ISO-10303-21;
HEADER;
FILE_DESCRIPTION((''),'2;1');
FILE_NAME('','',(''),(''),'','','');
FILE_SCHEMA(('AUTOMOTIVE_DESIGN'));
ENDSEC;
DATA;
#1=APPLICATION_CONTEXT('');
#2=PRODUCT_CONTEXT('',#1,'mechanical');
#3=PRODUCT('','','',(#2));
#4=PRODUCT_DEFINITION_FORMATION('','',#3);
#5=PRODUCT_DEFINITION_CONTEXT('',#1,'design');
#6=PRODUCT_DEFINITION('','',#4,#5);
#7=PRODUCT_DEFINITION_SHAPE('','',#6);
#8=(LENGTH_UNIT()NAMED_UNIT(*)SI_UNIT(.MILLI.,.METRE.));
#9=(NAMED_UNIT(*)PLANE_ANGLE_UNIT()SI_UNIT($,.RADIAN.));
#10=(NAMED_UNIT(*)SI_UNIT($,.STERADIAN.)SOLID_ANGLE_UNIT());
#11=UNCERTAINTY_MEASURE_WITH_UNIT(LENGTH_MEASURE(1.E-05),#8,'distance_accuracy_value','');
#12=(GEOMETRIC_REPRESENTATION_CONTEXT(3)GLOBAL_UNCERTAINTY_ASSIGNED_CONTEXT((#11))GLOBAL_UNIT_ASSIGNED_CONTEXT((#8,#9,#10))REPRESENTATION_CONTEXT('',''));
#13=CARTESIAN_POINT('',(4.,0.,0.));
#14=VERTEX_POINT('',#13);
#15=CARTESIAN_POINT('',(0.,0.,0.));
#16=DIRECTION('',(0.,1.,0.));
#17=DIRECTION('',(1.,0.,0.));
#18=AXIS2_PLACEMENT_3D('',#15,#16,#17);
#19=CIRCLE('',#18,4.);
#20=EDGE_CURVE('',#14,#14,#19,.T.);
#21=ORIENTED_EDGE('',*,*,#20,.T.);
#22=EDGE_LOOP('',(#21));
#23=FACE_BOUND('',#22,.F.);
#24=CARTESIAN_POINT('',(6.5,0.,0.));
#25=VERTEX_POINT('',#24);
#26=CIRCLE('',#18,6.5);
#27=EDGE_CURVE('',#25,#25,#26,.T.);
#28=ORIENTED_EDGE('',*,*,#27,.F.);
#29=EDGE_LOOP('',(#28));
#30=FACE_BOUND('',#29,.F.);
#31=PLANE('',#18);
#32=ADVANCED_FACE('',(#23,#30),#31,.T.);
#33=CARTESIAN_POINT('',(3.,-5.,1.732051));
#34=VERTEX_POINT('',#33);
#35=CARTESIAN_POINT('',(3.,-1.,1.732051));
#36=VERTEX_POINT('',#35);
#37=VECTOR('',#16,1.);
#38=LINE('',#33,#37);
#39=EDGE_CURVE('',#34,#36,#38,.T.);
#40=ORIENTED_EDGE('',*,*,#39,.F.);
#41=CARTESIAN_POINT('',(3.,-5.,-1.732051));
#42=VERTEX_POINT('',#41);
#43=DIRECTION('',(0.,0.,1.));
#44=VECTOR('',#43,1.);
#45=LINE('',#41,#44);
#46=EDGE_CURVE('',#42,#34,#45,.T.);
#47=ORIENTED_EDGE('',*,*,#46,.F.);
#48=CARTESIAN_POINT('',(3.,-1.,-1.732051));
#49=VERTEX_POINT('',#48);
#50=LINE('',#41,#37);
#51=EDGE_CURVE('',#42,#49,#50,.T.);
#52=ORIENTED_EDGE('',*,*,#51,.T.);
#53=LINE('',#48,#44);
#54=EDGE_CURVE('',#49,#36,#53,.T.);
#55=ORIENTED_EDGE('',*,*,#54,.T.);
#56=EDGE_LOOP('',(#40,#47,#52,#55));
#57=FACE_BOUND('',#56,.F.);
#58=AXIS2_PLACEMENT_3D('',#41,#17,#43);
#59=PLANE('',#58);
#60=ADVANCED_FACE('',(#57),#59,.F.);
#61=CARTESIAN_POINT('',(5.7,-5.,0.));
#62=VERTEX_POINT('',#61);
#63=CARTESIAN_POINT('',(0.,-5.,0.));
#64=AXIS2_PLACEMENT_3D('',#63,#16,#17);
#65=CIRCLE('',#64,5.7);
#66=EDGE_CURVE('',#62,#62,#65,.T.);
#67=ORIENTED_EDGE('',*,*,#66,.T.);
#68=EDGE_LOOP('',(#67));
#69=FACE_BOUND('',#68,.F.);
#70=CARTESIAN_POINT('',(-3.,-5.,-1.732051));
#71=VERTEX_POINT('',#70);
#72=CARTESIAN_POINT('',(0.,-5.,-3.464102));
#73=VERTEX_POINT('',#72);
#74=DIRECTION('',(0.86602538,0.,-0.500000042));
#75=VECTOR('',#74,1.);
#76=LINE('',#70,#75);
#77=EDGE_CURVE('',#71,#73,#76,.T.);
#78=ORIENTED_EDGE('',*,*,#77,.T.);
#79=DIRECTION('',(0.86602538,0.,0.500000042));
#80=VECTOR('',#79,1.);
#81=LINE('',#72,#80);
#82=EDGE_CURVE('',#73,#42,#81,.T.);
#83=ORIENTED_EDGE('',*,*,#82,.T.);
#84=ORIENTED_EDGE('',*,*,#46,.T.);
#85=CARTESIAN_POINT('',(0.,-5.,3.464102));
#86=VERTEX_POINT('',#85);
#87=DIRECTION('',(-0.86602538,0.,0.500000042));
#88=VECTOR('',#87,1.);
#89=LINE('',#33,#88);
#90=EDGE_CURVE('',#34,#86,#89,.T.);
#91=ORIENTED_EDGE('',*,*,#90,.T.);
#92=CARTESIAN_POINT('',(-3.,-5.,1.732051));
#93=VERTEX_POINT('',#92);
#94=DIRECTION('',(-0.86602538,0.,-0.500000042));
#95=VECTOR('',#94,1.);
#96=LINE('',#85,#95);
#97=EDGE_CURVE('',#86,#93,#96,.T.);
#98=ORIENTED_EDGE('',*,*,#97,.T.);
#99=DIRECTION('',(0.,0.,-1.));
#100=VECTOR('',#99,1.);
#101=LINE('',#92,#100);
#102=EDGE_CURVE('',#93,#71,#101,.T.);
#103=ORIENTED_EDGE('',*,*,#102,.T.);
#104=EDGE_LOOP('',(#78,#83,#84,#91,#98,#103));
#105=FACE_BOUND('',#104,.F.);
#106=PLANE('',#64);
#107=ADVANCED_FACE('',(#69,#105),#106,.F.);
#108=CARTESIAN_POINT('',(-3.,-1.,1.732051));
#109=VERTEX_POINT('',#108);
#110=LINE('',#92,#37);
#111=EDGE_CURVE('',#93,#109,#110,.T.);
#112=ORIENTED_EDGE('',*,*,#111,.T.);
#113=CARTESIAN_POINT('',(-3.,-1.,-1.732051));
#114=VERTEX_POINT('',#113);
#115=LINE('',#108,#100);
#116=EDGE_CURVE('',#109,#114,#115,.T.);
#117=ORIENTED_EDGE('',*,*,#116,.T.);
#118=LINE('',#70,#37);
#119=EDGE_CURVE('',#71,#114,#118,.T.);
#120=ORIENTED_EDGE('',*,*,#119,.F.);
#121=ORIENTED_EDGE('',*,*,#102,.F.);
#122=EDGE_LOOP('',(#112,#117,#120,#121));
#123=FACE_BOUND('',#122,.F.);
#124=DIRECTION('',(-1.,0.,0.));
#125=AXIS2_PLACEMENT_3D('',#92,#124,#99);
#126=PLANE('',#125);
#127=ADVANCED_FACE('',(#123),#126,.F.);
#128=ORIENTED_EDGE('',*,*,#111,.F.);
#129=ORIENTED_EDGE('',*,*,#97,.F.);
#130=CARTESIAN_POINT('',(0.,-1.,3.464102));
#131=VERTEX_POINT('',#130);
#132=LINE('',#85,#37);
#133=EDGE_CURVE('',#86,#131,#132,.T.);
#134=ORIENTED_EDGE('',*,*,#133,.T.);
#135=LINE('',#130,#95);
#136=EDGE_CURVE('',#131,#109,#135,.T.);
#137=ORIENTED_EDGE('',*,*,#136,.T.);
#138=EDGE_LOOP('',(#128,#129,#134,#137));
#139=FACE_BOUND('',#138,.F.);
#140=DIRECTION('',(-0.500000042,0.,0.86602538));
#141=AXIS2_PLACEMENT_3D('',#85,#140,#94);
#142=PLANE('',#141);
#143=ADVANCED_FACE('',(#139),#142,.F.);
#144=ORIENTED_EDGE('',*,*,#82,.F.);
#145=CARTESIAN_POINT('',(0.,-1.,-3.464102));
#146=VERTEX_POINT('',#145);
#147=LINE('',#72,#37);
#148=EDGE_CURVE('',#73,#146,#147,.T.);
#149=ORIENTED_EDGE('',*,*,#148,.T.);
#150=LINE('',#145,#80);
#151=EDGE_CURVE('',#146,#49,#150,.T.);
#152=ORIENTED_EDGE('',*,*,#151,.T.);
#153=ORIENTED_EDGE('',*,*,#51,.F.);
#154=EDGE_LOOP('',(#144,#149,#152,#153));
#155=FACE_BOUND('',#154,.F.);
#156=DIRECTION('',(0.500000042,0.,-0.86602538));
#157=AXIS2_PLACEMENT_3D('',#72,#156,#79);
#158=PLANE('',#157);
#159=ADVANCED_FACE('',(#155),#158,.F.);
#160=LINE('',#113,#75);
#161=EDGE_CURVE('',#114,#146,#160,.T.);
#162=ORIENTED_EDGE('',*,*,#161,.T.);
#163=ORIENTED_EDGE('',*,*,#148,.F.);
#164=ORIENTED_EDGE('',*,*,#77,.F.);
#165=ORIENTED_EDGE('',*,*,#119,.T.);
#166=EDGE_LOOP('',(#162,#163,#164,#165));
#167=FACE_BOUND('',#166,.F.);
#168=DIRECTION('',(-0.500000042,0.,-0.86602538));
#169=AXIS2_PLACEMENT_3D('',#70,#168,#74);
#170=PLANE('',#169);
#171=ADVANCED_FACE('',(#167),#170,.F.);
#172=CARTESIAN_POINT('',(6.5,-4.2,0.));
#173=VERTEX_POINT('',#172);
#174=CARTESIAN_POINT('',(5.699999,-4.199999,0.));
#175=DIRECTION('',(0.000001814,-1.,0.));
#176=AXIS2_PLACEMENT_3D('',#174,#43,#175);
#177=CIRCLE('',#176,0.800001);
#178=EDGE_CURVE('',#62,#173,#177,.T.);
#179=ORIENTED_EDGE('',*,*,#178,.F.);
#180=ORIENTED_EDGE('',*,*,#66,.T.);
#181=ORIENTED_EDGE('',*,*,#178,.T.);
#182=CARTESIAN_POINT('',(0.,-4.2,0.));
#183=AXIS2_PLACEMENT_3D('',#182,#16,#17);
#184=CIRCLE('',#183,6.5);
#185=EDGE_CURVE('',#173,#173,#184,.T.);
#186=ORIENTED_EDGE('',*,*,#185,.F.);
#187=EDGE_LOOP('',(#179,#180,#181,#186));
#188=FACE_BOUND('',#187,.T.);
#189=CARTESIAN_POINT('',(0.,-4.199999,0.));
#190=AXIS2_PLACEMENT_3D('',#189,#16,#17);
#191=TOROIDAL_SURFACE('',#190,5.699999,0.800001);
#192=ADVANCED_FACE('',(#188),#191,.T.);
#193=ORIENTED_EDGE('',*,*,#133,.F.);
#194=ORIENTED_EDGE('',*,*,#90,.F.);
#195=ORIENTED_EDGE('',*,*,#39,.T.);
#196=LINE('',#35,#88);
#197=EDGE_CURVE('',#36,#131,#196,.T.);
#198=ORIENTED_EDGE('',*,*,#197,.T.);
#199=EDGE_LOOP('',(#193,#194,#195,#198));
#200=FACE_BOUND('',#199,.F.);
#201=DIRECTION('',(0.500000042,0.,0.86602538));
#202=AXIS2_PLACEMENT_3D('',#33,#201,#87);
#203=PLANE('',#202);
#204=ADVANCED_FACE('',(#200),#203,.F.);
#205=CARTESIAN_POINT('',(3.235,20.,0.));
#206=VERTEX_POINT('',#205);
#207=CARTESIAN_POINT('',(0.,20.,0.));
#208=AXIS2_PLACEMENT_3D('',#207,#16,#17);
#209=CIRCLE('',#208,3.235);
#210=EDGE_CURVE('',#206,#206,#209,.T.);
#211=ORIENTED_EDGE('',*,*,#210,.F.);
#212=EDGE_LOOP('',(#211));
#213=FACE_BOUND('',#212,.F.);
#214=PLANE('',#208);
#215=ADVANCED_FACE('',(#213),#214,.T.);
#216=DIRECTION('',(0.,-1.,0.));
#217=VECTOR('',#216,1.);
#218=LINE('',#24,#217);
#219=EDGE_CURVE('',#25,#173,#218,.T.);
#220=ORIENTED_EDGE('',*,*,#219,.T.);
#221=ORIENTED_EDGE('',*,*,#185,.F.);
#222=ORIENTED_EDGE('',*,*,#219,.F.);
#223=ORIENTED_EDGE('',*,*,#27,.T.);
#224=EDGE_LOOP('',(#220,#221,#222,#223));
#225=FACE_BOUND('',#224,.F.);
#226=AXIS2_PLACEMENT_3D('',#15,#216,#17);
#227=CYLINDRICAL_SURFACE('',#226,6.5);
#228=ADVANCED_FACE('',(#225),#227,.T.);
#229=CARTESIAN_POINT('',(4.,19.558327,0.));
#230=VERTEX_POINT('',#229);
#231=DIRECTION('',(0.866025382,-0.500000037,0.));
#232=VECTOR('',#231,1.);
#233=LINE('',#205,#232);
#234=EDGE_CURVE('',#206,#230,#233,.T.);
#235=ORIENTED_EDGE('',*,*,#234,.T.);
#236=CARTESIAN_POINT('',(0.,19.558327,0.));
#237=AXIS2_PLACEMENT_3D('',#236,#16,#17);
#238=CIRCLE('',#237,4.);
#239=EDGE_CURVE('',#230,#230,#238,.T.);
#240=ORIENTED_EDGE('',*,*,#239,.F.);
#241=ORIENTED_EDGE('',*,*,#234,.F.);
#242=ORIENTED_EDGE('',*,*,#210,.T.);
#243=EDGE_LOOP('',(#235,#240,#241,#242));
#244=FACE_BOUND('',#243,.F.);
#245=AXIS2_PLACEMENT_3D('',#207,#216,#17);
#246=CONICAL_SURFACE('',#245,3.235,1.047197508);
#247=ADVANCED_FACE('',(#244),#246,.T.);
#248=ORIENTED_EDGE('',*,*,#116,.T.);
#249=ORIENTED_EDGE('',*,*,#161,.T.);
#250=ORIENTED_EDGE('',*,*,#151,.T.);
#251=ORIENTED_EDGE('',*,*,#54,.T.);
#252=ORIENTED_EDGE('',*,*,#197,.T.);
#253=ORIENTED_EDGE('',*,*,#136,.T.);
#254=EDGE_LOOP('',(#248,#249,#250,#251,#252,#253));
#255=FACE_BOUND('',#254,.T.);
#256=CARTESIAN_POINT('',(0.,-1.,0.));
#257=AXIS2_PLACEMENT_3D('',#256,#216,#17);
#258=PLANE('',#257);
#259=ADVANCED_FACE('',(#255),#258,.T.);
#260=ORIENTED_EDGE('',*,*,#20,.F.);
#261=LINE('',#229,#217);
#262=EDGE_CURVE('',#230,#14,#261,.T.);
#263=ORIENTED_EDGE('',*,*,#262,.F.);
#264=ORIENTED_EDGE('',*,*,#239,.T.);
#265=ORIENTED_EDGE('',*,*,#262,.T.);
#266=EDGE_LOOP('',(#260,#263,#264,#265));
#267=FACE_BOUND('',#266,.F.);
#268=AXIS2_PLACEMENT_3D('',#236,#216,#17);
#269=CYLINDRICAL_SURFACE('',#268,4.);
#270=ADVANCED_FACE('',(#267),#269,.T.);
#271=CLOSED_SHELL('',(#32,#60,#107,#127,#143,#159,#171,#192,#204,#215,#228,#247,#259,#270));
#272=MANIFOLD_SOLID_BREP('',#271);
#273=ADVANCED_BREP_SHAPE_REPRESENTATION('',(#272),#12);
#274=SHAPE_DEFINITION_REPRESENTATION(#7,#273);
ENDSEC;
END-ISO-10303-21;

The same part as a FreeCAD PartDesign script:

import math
import FreeCAD as App
import Part
import Sketcher
from FreeCAD import Vector
Q = App.Units.Quantity


def add_polygon(sketch, points):
    """Adds a closed chain of lines whose ends are joined by coincident constraints."""
    first, n = sketch.GeometryCount, len(points)
    for a, b in zip(points, points[1:] + points[:1]):
        sketch.addGeometry(Part.LineSegment(App.Vector(*a, 0), App.Vector(*b, 0)), False)
    for i in range(n):
        sketch.addConstraint(Sketcher.Constraint("Coincident", first + i, 2, first + (i + 1) % n, 1))

doc = App.newDocument("Part")
params = doc.addObject("Spreadsheet::Sheet", "Params")
for row, (alias, value) in enumerate([
    ("sketch1_radius", "0.800001 mm"),
    ("sketch1_height", "25 mm"),
    ("sketch1_width", "2.5 mm"),
    ("sketch1_width2", "5.7 mm"),
    ("sketch1_height2", "4.2 mm"),
    ("revolution_angle", "360 deg"),
    ("pocket1_length", "4 mm"),
], start=1):
    params.set(f"A{row}", alias)
    params.set(f"B{row}", "=" + value)
    params.setAlias(f"B{row}", alias)

body = doc.addObject("PartDesign::Body", "Body")

# Sketch on XY plane
sketch1 = body.newObject("Sketcher::SketchObject", "Sketch")
sketch1.AttachmentSupport = (doc.getObject("XY_Plane"), [""])
sketch1.MapMode = "FlatFace"
sketch1.addGeometry(Part.LineSegment(Vector(6.5, 0, 0), Vector(4, 0, 0)), False)
sketch1.addGeometry(Part.LineSegment(Vector(4, 0, 0), Vector(4, 19.6, 0)), False)
sketch1.addGeometry(Part.LineSegment(Vector(4, 19.6, 0), Vector(3.2, 20, 0)), False)
sketch1.addGeometry(Part.LineSegment(Vector(3.2, 20, 0), Vector(0, 20, 0)), False)
sketch1.addGeometry(Part.LineSegment(Vector(0, 20, 0), Vector(0, -5, 0)), False)
sketch1.addGeometry(Part.LineSegment(Vector(0, -5, 0), Vector(5.7, -5, 0)), False)
sketch1.addGeometry(Part.ArcOfCircle(Part.Circle(Vector(5.7, -4.2, 0), Vector(0, 0, 1), 0.8), math.radians(-90), math.radians(0)), False)
sketch1.addGeometry(Part.LineSegment(Vector(6.5, -4.2, 0), Vector(6.5, 0, 0)), False)
sketch1.addConstraint(Sketcher.Constraint("Coincident", 0, 2, 1, 1))
sketch1.addConstraint(Sketcher.Constraint("Coincident", 1, 2, 2, 1))
sketch1.addConstraint(Sketcher.Constraint("Coincident", 2, 2, 3, 1))
sketch1.addConstraint(Sketcher.Constraint("Coincident", 3, 2, 4, 1))
sketch1.addConstraint(Sketcher.Constraint("Coincident", 4, 2, 5, 1))
sketch1.addConstraint(Sketcher.Constraint("Tangent", 5, 2, 6, 1))
sketch1.addConstraint(Sketcher.Constraint("Tangent", 6, 2, 7, 1))
sketch1.addConstraint(Sketcher.Constraint("Coincident", 7, 2, 0, 1))
sketch1.addConstraint(Sketcher.Constraint("Horizontal", 0))
sketch1.addConstraint(Sketcher.Constraint("Vertical", 1))
sketch1.addConstraint(Sketcher.Constraint("Horizontal", 3))
sketch1.addConstraint(Sketcher.Constraint("Vertical", 4))
sketch1.addConstraint(Sketcher.Constraint("Horizontal", 5))
sketch1.addConstraint(Sketcher.Constraint("Vertical", 7))
sketch1.addConstraint(Sketcher.Constraint("PointOnObject", 0, 2, -1))
sketch1.addConstraint(Sketcher.Constraint("PointOnObject", 3, 2, -2))
sketch1.addConstraint(Sketcher.Constraint("Radius", 6, Q("0.800001 mm")))
sketch1.addConstraint(Sketcher.Constraint("DistanceY", 4, 2, 4, 1, Q("25 mm")))
sketch1.addConstraint(Sketcher.Constraint("Angle", 2, Q("149.999998 deg")))
sketch1.addConstraint(Sketcher.Constraint("DistanceX", 0, 2, 0, 1, Q("2.5 mm")))
sketch1.addConstraint(Sketcher.Constraint("DistanceX", 5, 1, 5, 2, Q("5.7 mm")))
sketch1.addConstraint(Sketcher.Constraint("DistanceY", 7, 1, 7, 2, Q("4.2 mm")))
sketch1.addConstraint(Sketcher.Constraint("DistanceX", 3, 2, 3, 1, Q("3.235 mm")))
sketch1.setExpression("Constraints[16]", "Params.sketch1_radius")
sketch1.setExpression("Constraints[17]", "Params.sketch1_height")
sketch1.setExpression("Constraints[19]", "Params.sketch1_width")
sketch1.setExpression("Constraints[20]", "Params.sketch1_width2")
sketch1.setExpression("Constraints[21]", "Params.sketch1_height2")
revolution = body.newObject("PartDesign::Revolution", "Revolution")
revolution.Profile = sketch1
revolution.ReferenceAxis = (sketch1, ["V_Axis"])
revolution.setExpression("Angle", "Params.revolution_angle")

# Sketch on XZ plane
sketch2 = body.newObject("Sketcher::SketchObject", "Sketch001")
sketch2.AttachmentSupport = (doc.getObject("XZ_Plane"), [""])
sketch2.MapMode = "FlatFace"
sketch2.AttachmentOffset = App.Placement(Vector(0, 0, 5), App.Rotation())
add_polygon(sketch2, [(-3, 1.7), (-3, -1.7), (0, -3.5), (3, -1.7), (3, 1.7), (0, 3.5)])  # lines 0-5
sketch2.addConstraint(Sketcher.Constraint("Vertical", 0))
sketch2.addConstraint(Sketcher.Constraint("Vertical", 3))
sketch2.addConstraint(Sketcher.Constraint("Symmetric", 0, 2, 3, 2, -1, 1))
sketch2.addConstraint(Sketcher.Constraint("Symmetric", 1, 2, 4, 2, -1, 1))
sketch2.addConstraint(Sketcher.Constraint("PointOnObject", 1, 2, -2))
sketch2.addConstraint(Sketcher.Constraint("Parallel", 2, 5))
sketch2.addConstraint(Sketcher.Constraint("Horizontal", 0, 2, 2, 2))
sketch2.addConstraint(Sketcher.Constraint("Angle", 1, Q("-30.000003 deg")))
sketch2.addConstraint(Sketcher.Constraint("DistanceX", 0, 2, -1, 1, Q("3 mm")))
sketch2.addConstraint(Sketcher.Constraint("DistanceY", 0, 2, 0, 1, Q("3.464102 mm")))
pocket1 = body.newObject("PartDesign::Pocket", "Pocket")
pocket1.Profile = sketch2
pocket1.setExpression("Length", "Params.pocket1_length")

doc.recompute()
